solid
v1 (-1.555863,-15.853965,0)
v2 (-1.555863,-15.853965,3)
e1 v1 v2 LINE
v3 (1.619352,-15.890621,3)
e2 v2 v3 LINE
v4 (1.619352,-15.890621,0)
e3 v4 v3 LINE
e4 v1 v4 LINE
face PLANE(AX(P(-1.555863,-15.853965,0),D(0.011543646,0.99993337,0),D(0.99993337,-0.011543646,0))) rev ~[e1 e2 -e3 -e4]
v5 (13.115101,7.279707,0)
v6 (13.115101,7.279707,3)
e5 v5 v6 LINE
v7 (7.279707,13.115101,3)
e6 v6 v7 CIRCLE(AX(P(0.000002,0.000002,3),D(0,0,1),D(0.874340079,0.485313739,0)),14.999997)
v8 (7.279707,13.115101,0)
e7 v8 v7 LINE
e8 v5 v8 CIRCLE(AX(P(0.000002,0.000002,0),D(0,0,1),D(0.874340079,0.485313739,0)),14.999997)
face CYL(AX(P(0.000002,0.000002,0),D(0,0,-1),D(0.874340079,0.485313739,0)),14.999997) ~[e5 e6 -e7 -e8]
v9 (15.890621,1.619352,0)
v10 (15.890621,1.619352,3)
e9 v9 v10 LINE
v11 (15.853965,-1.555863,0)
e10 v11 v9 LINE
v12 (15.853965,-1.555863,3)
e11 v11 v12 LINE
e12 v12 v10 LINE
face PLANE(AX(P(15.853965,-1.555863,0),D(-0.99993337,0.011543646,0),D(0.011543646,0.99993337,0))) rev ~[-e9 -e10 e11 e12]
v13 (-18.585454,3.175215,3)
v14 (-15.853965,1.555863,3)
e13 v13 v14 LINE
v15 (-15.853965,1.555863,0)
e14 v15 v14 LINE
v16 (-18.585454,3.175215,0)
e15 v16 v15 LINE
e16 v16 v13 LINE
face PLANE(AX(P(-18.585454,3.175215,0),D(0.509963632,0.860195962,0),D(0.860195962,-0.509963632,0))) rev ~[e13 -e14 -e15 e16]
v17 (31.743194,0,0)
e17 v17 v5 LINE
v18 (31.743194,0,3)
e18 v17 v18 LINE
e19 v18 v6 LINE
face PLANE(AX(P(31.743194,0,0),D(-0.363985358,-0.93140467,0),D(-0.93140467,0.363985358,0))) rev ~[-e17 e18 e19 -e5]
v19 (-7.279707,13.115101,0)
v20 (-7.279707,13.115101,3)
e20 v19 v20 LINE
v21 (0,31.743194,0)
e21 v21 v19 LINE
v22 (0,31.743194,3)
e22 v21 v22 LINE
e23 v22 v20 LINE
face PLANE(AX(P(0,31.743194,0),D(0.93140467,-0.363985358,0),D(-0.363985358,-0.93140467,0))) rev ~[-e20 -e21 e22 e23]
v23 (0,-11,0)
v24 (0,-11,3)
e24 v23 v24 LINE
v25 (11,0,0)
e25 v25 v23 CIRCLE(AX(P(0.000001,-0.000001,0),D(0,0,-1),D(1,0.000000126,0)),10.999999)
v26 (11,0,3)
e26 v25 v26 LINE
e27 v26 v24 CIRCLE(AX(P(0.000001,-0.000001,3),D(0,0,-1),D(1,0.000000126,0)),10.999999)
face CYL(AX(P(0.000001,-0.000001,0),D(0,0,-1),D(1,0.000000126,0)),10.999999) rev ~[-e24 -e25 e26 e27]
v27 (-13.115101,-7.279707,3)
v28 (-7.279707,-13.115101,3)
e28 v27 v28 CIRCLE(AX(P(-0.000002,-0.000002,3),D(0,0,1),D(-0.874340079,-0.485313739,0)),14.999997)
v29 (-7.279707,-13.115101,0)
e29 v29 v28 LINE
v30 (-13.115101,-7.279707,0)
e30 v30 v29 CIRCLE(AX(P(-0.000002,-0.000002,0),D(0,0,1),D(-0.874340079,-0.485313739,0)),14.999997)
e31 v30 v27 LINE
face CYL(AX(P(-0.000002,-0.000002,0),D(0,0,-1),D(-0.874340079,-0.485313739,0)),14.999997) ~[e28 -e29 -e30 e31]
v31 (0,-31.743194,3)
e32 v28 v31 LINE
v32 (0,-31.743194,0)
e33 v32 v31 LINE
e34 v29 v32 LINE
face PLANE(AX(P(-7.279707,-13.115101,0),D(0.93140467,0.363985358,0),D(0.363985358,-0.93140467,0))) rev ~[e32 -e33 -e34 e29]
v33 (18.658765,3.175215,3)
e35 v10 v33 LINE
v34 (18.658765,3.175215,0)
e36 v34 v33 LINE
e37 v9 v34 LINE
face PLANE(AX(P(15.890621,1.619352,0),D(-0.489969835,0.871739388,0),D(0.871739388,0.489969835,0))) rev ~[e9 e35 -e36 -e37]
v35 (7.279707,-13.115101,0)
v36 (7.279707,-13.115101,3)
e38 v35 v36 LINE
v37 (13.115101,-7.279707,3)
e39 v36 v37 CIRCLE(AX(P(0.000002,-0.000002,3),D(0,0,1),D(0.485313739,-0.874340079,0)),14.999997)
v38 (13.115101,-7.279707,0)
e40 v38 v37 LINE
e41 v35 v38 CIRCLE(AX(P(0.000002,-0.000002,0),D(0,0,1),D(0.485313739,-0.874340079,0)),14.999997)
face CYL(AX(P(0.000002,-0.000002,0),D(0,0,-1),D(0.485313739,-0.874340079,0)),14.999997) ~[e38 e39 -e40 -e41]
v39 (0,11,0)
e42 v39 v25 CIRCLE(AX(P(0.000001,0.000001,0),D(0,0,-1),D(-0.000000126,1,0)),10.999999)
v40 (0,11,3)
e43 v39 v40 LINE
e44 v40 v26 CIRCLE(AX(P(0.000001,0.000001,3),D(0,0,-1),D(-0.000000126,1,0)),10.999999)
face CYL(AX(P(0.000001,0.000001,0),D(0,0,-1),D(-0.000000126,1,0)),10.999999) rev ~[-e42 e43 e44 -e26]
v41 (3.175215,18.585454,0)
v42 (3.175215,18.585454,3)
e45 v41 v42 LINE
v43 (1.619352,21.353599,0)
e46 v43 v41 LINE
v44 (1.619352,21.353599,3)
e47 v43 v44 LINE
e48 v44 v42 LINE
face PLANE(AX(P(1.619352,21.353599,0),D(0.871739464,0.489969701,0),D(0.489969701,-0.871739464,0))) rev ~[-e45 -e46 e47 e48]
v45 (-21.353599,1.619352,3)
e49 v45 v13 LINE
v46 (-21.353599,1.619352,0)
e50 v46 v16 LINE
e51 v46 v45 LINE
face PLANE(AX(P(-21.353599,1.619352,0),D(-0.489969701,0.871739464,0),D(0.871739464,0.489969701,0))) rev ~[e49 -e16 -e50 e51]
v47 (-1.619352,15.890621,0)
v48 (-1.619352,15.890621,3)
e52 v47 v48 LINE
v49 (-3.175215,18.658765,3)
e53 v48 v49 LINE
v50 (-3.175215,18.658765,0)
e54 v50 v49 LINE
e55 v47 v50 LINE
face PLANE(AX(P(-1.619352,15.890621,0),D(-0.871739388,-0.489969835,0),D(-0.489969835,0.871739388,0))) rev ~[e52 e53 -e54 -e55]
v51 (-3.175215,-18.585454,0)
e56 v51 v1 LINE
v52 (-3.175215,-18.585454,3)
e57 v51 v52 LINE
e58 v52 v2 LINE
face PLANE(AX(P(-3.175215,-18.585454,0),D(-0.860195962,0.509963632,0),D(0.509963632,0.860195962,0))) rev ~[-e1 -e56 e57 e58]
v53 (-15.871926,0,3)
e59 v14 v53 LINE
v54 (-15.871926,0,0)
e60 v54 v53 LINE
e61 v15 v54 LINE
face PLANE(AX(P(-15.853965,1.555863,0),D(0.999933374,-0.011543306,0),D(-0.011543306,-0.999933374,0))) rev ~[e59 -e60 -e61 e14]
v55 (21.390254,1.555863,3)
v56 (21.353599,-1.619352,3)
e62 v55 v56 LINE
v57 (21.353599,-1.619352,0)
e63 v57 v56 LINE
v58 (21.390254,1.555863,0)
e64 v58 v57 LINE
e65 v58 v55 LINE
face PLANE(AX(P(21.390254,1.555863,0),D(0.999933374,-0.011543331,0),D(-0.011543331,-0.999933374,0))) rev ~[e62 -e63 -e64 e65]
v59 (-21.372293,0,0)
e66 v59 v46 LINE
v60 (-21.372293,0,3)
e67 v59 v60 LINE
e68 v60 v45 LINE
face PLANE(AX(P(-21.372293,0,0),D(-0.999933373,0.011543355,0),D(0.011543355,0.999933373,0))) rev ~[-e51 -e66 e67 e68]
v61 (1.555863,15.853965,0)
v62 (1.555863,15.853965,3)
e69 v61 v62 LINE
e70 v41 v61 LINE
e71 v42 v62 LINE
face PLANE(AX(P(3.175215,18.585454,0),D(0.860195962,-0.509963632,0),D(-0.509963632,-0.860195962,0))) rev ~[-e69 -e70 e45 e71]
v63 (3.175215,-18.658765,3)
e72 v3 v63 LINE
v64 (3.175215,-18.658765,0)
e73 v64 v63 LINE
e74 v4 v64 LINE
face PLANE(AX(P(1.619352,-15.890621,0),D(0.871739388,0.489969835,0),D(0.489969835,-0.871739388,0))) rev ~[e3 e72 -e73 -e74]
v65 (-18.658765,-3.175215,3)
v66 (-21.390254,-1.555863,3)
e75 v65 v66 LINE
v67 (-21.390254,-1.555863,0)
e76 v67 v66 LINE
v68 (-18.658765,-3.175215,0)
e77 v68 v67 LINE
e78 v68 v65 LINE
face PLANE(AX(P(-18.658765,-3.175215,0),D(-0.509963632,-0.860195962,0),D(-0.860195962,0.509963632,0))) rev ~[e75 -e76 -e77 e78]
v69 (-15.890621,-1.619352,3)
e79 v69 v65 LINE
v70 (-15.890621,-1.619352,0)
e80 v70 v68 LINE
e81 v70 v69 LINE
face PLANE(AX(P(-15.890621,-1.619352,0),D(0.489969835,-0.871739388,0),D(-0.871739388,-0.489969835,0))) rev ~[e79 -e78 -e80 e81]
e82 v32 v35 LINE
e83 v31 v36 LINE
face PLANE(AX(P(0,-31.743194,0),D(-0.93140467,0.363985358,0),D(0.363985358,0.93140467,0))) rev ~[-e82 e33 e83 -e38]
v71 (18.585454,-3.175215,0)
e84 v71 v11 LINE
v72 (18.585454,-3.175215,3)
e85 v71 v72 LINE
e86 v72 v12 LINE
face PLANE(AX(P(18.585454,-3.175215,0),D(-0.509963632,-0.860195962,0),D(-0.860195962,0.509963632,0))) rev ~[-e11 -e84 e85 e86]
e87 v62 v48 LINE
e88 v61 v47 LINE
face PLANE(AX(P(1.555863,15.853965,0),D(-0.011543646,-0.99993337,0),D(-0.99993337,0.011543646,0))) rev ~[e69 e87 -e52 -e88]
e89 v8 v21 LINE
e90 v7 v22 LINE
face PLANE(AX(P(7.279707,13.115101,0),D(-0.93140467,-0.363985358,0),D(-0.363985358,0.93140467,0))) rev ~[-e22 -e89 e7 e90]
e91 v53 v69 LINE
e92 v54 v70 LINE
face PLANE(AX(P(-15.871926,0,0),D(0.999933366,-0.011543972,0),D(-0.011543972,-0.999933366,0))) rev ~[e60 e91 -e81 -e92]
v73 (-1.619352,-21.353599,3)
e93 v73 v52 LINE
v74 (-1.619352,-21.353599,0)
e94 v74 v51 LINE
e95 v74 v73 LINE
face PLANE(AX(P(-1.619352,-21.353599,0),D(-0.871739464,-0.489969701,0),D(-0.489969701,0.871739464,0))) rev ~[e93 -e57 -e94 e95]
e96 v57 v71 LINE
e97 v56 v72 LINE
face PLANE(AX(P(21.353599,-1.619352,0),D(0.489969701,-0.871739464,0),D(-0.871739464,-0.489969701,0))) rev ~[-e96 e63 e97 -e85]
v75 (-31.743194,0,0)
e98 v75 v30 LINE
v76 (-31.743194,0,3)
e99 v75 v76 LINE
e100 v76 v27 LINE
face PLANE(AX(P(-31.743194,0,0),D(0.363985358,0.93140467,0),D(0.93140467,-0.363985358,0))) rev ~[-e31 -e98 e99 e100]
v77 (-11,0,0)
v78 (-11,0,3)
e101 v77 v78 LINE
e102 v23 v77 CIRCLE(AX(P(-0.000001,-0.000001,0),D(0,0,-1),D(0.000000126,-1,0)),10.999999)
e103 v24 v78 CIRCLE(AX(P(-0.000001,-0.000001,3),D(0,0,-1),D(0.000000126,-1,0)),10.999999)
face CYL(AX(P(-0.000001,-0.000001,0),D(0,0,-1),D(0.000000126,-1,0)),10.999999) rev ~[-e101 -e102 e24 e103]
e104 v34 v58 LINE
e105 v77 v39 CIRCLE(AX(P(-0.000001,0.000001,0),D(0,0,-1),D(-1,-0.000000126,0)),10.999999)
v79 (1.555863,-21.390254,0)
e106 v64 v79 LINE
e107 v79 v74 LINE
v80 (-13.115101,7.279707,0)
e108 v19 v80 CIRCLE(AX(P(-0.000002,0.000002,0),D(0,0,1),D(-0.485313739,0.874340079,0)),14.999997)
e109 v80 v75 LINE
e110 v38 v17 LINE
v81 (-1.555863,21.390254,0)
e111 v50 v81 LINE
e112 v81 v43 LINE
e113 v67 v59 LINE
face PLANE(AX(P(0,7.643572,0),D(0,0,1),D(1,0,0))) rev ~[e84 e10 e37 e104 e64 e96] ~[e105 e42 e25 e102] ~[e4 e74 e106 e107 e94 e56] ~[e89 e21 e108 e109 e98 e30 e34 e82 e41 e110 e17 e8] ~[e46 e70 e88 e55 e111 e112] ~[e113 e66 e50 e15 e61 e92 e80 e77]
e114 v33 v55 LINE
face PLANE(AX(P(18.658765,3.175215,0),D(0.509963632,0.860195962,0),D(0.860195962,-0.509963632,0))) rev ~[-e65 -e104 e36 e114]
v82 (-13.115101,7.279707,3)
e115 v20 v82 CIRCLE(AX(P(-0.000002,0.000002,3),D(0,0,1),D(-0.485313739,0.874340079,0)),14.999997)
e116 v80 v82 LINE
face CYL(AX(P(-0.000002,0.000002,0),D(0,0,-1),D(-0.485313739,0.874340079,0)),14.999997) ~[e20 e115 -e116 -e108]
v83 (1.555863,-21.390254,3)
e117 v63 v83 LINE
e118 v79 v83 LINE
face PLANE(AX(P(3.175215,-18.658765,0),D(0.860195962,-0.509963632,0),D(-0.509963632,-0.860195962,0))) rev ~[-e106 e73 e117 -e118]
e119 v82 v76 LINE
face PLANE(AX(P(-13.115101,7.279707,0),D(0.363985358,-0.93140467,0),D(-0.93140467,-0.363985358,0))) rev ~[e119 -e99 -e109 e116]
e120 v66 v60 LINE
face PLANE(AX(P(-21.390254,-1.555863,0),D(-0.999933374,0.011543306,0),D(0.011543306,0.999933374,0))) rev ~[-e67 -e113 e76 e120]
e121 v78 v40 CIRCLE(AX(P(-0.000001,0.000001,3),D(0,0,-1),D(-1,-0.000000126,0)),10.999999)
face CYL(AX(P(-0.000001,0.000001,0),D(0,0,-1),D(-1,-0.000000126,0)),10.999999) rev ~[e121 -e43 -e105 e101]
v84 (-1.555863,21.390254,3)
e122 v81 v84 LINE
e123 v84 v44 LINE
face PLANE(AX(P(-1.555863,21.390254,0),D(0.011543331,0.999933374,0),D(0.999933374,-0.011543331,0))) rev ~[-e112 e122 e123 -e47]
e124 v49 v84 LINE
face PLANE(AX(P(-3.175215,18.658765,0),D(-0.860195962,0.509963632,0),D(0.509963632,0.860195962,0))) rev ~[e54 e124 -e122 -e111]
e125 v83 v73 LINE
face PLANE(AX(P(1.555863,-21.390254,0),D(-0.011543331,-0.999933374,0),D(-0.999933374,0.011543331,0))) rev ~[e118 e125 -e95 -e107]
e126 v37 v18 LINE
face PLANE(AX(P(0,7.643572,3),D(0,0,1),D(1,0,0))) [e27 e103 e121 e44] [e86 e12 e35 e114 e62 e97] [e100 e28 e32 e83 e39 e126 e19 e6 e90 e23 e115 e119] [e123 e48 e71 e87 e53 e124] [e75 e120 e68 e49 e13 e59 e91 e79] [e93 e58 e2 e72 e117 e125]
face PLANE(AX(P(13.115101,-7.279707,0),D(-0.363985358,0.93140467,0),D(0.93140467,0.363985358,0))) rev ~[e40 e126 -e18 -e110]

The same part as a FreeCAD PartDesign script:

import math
import FreeCAD as App
import Part
import Sketcher
Q = App.Units.Quantity


def add_polygon(sketch, points):
    """Adds a closed chain of lines whose ends are joined by coincident constraints."""
    first, n = sketch.GeometryCount, len(points)
    for a, b in zip(points, points[1:] + points[:1]):
        sketch.addGeometry(Part.LineSegment(App.Vector(*a, 0), App.Vector(*b, 0)), False)
    for i in range(n):
        sketch.addConstraint(Sketcher.Constraint("Coincident", first + i, 2, first + (i + 1) % n, 1))

doc = App.newDocument("Part")
body = doc.addObject("PartDesign::Body", "Body")

# Sketch on XY plane
sketch1 = doc.addObject("Sketcher::SketchObject", "Sketch")
body.addObject(sketch1)
sketch1.AttachmentSupport = (doc.XY_Plane, [""])
sketch1.MapMode = "FlatFace"
sketch1.addGeometry(Part.ArcOfCircle(Part.Circle(App.Vector(0.000002, 0.000002, 0), App.Vector(0, 0, 1), 14.999997), math.radians(29.03303), math.radians(60.96697)), False)  # 0
sketch1.addGeometry(Part.LineSegment(App.Vector(7.279707, 13.115101, 0), App.Vector(0, 31.743194, 0)), False)  # 1
sketch1.addGeometry(Part.LineSegment(App.Vector(0, 31.743194, 0), App.Vector(-7.279707, 13.115101, 0)), False)  # 2
sketch1.addGeometry(Part.ArcOfCircle(Part.Circle(App.Vector(-0.000002, 0.000002, 0), App.Vector(0, 0, 1), 14.999997), math.radians(119.03303), math.radians(150.96697)), False)  # 3
sketch1.addGeometry(Part.LineSegment(App.Vector(-13.115101, 7.279707, 0), App.Vector(-31.743194, 0, 0)), False)  # 4
sketch1.addGeometry(Part.LineSegment(App.Vector(-31.743194, 0, 0), App.Vector(-13.115101, -7.279707, 0)), False)  # 5
sketch1.addGeometry(Part.ArcOfCircle(Part.Circle(App.Vector(-0.000002, -0.000002, 0), App.Vector(0, 0, 1), 14.999997), math.radians(-150.96697), math.radians(-119.03303)), False)  # 6
sketch1.addGeometry(Part.LineSegment(App.Vector(-7.279707, -13.115101, 0), App.Vector(0, -31.743194, 0)), False)  # 7
sketch1.addGeometry(Part.LineSegment(App.Vector(0, -31.743194, 0), App.Vector(7.279707, -13.115101, 0)), False)  # 8
sketch1.addGeometry(Part.ArcOfCircle(Part.Circle(App.Vector(0.000002, -0.000002, 0), App.Vector(0, 0, 1), 14.999997), math.radians(-60.96697), math.radians(-29.03303)), False)  # 9
sketch1.addGeometry(Part.LineSegment(App.Vector(13.115101, -7.279707, 0), App.Vector(31.743194, 0, 0)), False)  # 10
sketch1.addGeometry(Part.LineSegment(App.Vector(31.743194, 0, 0), App.Vector(13.115101, 7.279707, 0)), False)  # 11
add_polygon(sketch1, [(3.175215, -18.658765), (1.555863, -21.390254), (-1.619352, -21.353599), (-3.175215, -18.585454), (-1.555863, -15.853965), (1.619352, -15.890621)])  # lines 12-17
add_polygon(sketch1, [(-15.853965, 1.555863), (-15.871926, 0), (-15.890621, -1.619352), (-18.658765, -3.175215), (-21.390254, -1.555863), (-21.372293, 0), (-21.353599, 1.619352), (-18.585454, 3.175215)])  # lines 18-25
sketch1.addGeometry(Part.ArcOfCircle(Part.Circle(App.Vector(-0.000001, 0.000001, 0), App.Vector(0, 0, 1), 10.999999), math.radians(89.999993), math.radians(180.000007)), False)  # 26
sketch1.addGeometry(Part.ArcOfCircle(Part.Circle(App.Vector(0.000001, 0.000001, 0), App.Vector(0, 0, 1), 10.999999), math.radians(-0.000007), math.radians(90.000007)), False)  # 27
sketch1.addGeometry(Part.ArcOfCircle(Part.Circle(App.Vector(0.000001, -0.000001, 0), App.Vector(0, 0, 1), 10.999999), math.radians(-90.000007), math.radians(0.000007)), False)  # 28
sketch1.addGeometry(Part.ArcOfCircle(Part.Circle(App.Vector(-0.000001, -0.000001, 0), App.Vector(0, 0, 1), 10.999999), math.radians(179.999993), math.radians(270.000007)), False)  # 29
add_polygon(sketch1, [(18.658765, 3.175215), (21.390254, 1.555863), (21.353599, -1.619352), (18.585454, -3.175215), (15.853965, -1.555863), (15.890621, 1.619352)])  # lines 30-35
add_polygon(sketch1, [(1.555863, 15.853965), (-1.619352, 15.890621), (-3.175215, 18.658765), (-1.555863, 21.390254), (1.619352, 21.353599), (3.175215, 18.585454)])  # lines 36-41
sketch1.addConstraint([
    Sketcher.Constraint("Coincident", 0, 2, 1, 1),
    Sketcher.Constraint("Coincident", 1, 2, 2, 1),
    Sketcher.Constraint("Coincident", 2, 2, 3, 1),
    Sketcher.Constraint("Coincident", 3, 2, 4, 1),
    Sketcher.Constraint("Coincident", 4, 2, 5, 1),
    Sketcher.Constraint("Coincident", 5, 2, 6, 1),
    Sketcher.Constraint("Coincident", 6, 2, 7, 1),
    Sketcher.Constraint("Coincident", 7, 2, 8, 1),
    Sketcher.Constraint("Coincident", 8, 2, 9, 1),
    Sketcher.Constraint("Coincident", 9, 2, 10, 1),
    Sketcher.Constraint("Coincident", 10, 2, 11, 1),
    Sketcher.Constraint("Coincident", 11, 2, 0, 1),
    Sketcher.Constraint("Coincident", 26, 1, 27, 2),
    Sketcher.Constraint("Coincident", 27, 1, 28, 2),
    Sketcher.Constraint("Coincident", 28, 1, 29, 2),
    Sketcher.Constraint("Coincident", 29, 1, 26, 2),
    Sketcher.Constraint("Coincident", 0, 3, -1, 1),
    Sketcher.Constraint("Coincident", 3, 3, -1, 1),
    Sketcher.Constraint("Coincident", 6, 3, -1, 1),
    Sketcher.Constraint("Coincident", 9, 3, -1, 1),
    Sketcher.Constraint("Coincident", 26, 3, -1, 1),
    Sketcher.Constraint("Coincident", 27, 3, -1, 1),
    Sketcher.Constraint("Coincident", 28, 3, -1, 1),
    Sketcher.Constraint("PointOnObject", 1, 2, -2),
    Sketcher.Constraint("PointOnObject", 4, 2, -1),
    Sketcher.Constraint("PointOnObject", 7, 2, -2),
    Sketcher.Constraint("PointOnObject", 10, 2, -1),
    Sketcher.Constraint("PointOnObject", 18, 2, -1),
    Sketcher.Constraint("PointOnObject", 22, 2, -1),
    Sketcher.Constraint("PointOnObject", 26, 1, -2),
    Sketcher.Constraint("PointOnObject", 27, 1, -1),
    Sketcher.Constraint("PointOnObject", 28, 1, -2),
    Sketcher.Constraint("PointOnObject", 29, 1, -1),
    Sketcher.Constraint("Radius", 26, Q("10.999999 mm")),
    Sketcher.Constraint("Radius", 29, Q("10.999999 mm")),
    Sketcher.Constraint("Distance", 1, Q("20 mm")),
    Sketcher.Constraint("Distance", 2, Q("20 mm")),
    Sketcher.Constraint("Distance", 4, Q("20 mm")),
    Sketcher.Constraint("Distance", 5, Q("20 mm")),
    Sketcher.Constraint("Distance", 7, Q("20 mm")),
    Sketcher.Constraint("Distance", 8, Q("20 mm")),
    Sketcher.Constraint("Distance", 10, Q("20 mm")),
    Sketcher.Constraint("Distance", 11, Q("20 mm")),
    Sketcher.Constraint("Radius", 0, Q("14.999997 mm")),
    Sketcher.Constraint("Radius", 3, Q("14.999997 mm")),
    Sketcher.Constraint("Radius", 6, Q("14.999997 mm")),
    Sketcher.Constraint("Radius", 9, Q("14.999997 mm")),
    Sketcher.Constraint("DistanceY", -1, 1, 0, 2, Q("13.115101 mm")),
    Sketcher.Constraint("DistanceX", 3, 2, -1, 1, Q("13.115101 mm")),
    Sketcher.Constraint("DistanceY", 6, 2, -1, 1, Q("13.115101 mm")),
    Sketcher.Constraint("DistanceX", -1, 1, 9, 2, Q("13.115101 mm")),
    Sketcher.Constraint("DistanceY", 13, 2, -1, 1, Q("21.353599 mm")),
    Sketcher.Constraint("DistanceX", 23, 2, -1, 1, Q("21.353599 mm")),
    Sketcher.Constraint("DistanceX", -1, 1, 31, 2, Q("21.353599 mm")),
    Sketcher.Constraint("DistanceY", -1, 1, 39, 2, Q("21.353599 mm")),
    Sketcher.Constraint("DistanceY", 12, 2, 14, 2, Q("2.8048 mm")),
    Sketcher.Constraint("DistanceY", 17, 2, 15, 2, Q("2.8048 mm")),
    Sketcher.Constraint("DistanceX", 4, 2, 22, 2, Q("10.370901 mm")),
    Sketcher.Constraint("DistanceX", 21, 2, 24, 2, Q("2.8048 mm")),
    Sketcher.Constraint("DistanceX", 20, 2, 25, 2, Q("2.8048 mm")),
    Sketcher.Constraint("DistanceX", 32, 2, 30, 2, Q("2.8048 mm")),
    Sketcher.Constraint("DistanceX", 33, 2, 35, 2, Q("2.8048 mm")),
    Sketcher.Constraint("DistanceY", 40, 2, 38, 2, Q("2.8048 mm")),
    Sketcher.Constraint("DistanceY", 41, 2, 37, 2, Q("2.8048 mm")),
    Sketcher.Constraint("Distance", 19, Q("1.61946 mm")),
    Sketcher.Constraint("Distance", 23, Q("1.61946 mm")),
    Sketcher.Constraint("DistanceX", 13, 2, -1, 1, Q("1.619352 mm")),
    Sketcher.Constraint("DistanceX", -1, 1, 16, 2, Q("1.619352 mm")),
    Sketcher.Constraint("DistanceY", 16, 2, -1, 1, Q("15.890621 mm")),
    Sketcher.Constraint("DistanceX", 19, 2, -1, 1, Q("15.890621 mm")),
    Sketcher.Constraint("DistanceY", 19, 2, -1, 1, Q("1.619352 mm")),
    Sketcher.Constraint("DistanceY", 31, 2, -1, 1, Q("1.619352 mm")),
    Sketcher.Constraint("DistanceX", -1, 1, 34, 2, Q("15.890621 mm")),
    Sketcher.Constraint("DistanceY", -1, 1, 34, 2, Q("1.619352 mm")),
    Sketcher.Constraint("DistanceX", 36, 2, -1, 1, Q("1.619352 mm")),
    Sketcher.Constraint("DistanceY", -1, 1, 36, 2, Q("15.890621 mm")),
    Sketcher.Constraint("DistanceX", -1, 1, 39, 2, Q("1.619352 mm")),
    Sketcher.Constraint("DistanceY", 7, 2, 12, 2, Q("10.35294 mm")),
    Sketcher.Constraint("DistanceX", 6, 2, 12, 2, Q("8.83557 mm")),
    Sketcher.Constraint("DistanceY", 14, 2, 15, 2, Q("2.731489 mm")),
    Sketcher.Constraint("DistanceX", 13, 2, 15, 2, Q("0.063489 mm")),
    Sketcher.Constraint("DistanceX", 14, 2, 17, 2, Q("6.35043 mm")),
    Sketcher.Constraint("DistanceX", 20, 2, 18, 2, Q("2.786839 mm")),
    Sketcher.Constraint("DistanceX", 21, 2, 20, 2, Q("2.731489 mm")),
    Sketcher.Constraint("DistanceY", 19, 2, 21, 2, Q("0.063489 mm")),
    Sketcher.Constraint("DistanceY", 25, 2, 23, 2, Q("0.063489 mm")),
    Sketcher.Constraint("DistanceX", 30, 2, 10, 2, Q("10.35294 mm")),
    Sketcher.Constraint("DistanceY", 9, 2, 30, 2, Q("8.83557 mm")),
    Sketcher.Constraint("DistanceX", 33, 2, 32, 2, Q("2.731489 mm")),
    Sketcher.Constraint("DistanceY", 31, 2, 33, 2, Q("0.063489 mm")),
    Sketcher.Constraint("DistanceY", 32, 2, 35, 2, Q("6.35043 mm")),
    Sketcher.Constraint("DistanceY", 37, 2, 1, 2, Q("13.084429 mm")),
    Sketcher.Constraint("DistanceY", 37, 2, 38, 2, Q("2.731489 mm")),
    Sketcher.Constraint("DistanceX", 36, 2, 38, 2, Q("0.063489 mm")),
    Sketcher.Constraint("DistanceX", 37, 2, 40, 2, Q("6.35043 mm")),
    Sketcher.Constraint("DistanceX", 41, 2, 39, 2, Q("0.063489 mm")),
    Sketcher.Constraint("Distance", 12, Q("3.175426 mm")),
    Sketcher.Constraint("Distance", 20, Q("3.175426 mm")),
    Sketcher.Constraint("Distance", 24, Q("3.175427 mm")),
    Sketcher.Constraint("Distance", 30, Q("3.175426 mm")),
    Sketcher.Constraint("Distance", 37, Q("3.175426 mm")),
])
pad1 = doc.addObject("PartDesign::Pad", "Pad")
body.addObject(pad1)
pad1.Profile = sketch1
pad1.Length = 3

doc.recompute()
